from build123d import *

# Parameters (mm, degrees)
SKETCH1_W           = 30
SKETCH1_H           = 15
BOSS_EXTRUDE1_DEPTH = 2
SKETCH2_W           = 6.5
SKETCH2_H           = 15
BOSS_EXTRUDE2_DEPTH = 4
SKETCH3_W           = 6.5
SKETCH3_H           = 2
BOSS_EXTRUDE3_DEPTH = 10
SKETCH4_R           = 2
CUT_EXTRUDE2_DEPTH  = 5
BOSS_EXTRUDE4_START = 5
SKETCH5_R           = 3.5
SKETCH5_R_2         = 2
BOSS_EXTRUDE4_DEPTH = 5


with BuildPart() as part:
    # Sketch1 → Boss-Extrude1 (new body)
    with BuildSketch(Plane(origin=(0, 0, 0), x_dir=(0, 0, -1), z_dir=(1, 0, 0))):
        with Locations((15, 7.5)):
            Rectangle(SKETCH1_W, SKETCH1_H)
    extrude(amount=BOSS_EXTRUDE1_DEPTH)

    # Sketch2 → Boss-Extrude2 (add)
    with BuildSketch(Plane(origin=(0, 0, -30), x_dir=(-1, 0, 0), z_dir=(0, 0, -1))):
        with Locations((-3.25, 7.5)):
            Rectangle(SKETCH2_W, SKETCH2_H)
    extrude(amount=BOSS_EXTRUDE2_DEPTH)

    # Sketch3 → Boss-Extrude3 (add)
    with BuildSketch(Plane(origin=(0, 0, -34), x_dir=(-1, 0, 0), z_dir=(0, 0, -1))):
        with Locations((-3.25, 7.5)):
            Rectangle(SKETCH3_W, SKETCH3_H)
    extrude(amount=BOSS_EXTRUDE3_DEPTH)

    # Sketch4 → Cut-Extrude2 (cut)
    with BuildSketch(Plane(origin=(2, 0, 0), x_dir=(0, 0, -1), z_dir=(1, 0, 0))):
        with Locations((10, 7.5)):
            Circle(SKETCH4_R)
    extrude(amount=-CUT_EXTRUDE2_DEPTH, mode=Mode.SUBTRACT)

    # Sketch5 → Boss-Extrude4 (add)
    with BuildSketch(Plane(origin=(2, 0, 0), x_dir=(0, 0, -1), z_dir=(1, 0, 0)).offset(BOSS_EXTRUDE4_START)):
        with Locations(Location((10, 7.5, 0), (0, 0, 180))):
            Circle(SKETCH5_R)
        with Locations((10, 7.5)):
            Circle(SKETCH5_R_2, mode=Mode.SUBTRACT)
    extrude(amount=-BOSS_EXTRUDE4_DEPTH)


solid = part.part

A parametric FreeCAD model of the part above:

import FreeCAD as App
import Part
import Sketcher
Q = App.Units.Quantity

doc = App.newDocument("Part")
params = doc.addObject("Spreadsheet::Sheet", "Params")
for row, (alias, value) in enumerate([
    ("sketch1_width", "15 mm"),
    ("sketch1_height", "30 mm"),
    ("pad1_length", "2 mm"),
    ("sketch2_height", "15 mm"),
    ("sketch2_width", "6.5 mm"),
    ("pad2_length", "4 mm"),
    ("sketch3_height", "2 mm"),
    ("sketch3_width", "6.5 mm"),
    ("pad3_length", "10 mm"),
    ("sketch4_diameter", "4 mm"),
    ("pocket1_length", "5 mm"),
    ("sketch5_diameter", "7 mm"),
    ("sketch5_diameter2", "4 mm"),
    ("pad4_length", "5 mm"),
], start=1):
    params.set(f"A{row}", alias)
    params.set(f"B{row}", "=" + value)
    params.setAlias(f"B{row}", alias)

body = doc.addObject("PartDesign::Body", "Body")

# Sketch on YZ plane
sketch1 = body.newObject("Sketcher::SketchObject", "Sketch")
sketch1.AttachmentSupport = (doc.getObject("YZ_Plane"), [""])
sketch1.MapMode = "FlatFace"
sketch1.addGeometry([
    Part.LineSegment(App.Vector(15, 0, 0), App.Vector(0, 0, 0)),
    Part.LineSegment(App.Vector(0, 0, 0), App.Vector(0, -30, 0)),
    Part.LineSegment(App.Vector(0, -30, 0), App.Vector(15, -30, 0)),
    Part.LineSegment(App.Vector(15, -30, 0), App.Vector(15, 0, 0)),
], False)
sketch1.addConstraint([
    Sketcher.Constraint("Coincident", 0, 2, 1, 1),
    Sketcher.Constraint("Coincident", 1, 2, 2, 1),
    Sketcher.Constraint("Coincident", 2, 2, 3, 1),
    Sketcher.Constraint("Coincident", 3, 2, 0, 1),
    Sketcher.Constraint("Horizontal", 0),
    Sketcher.Constraint("Vertical", 1),
    Sketcher.Constraint("Horizontal", 2),
    Sketcher.Constraint("Vertical", 3),
    Sketcher.Constraint("Coincident", 0, 2, -1, 1),
    Sketcher.Constraint("DistanceX", 0, 2, 0, 1, Q("15 mm")),
    Sketcher.Constraint("DistanceY", 1, 2, 1, 1, Q("30 mm")),
])
sketch1.setExpression("Constraints[9]", "Params.sketch1_width")
sketch1.setExpression("Constraints[10]", "Params.sketch1_height")
pad1 = body.newObject("PartDesign::Pad", "Pad")
pad1.Profile = sketch1
pad1.setExpression("Length", "Params.pad1_length")

# Sketch on XY plane
sketch2 = body.newObject("Sketcher::SketchObject", "Sketch001")
sketch2.AttachmentSupport = (doc.getObject("XY_Plane"), [""])
sketch2.MapMode = "FlatFace"
sketch2.AttachmentOffset = App.Placement(App.Vector(0, 0, -30), App.Rotation())
sketch2.addGeometry([
    Part.LineSegment(App.Vector(6, 15, 0), App.Vector(6, 0, 0)),
    Part.LineSegment(App.Vector(6, 0, 0), App.Vector(0, 0, 0)),
    Part.LineSegment(App.Vector(0, 0, 0), App.Vector(0, 15, 0)),
    Part.LineSegment(App.Vector(0, 15, 0), App.Vector(6, 15, 0)),
], False)
sketch2.addConstraint([
    Sketcher.Constraint("Coincident", 0, 2, 1, 1),
    Sketcher.Constraint("Coincident", 1, 2, 2, 1),
    Sketcher.Constraint("Coincident", 2, 2, 3, 1),
    Sketcher.Constraint("Coincident", 3, 2, 0, 1),
    Sketcher.Constraint("Vertical", 0),
    Sketcher.Constraint("Horizontal", 1),
    Sketcher.Constraint("Vertical", 2),
    Sketcher.Constraint("Horizontal", 3),
    Sketcher.Constraint("Coincident", 1, 2, -1, 1),
    Sketcher.Constraint("DistanceY", 0, 2, 0, 1, Q("15 mm")),
    Sketcher.Constraint("DistanceX", 1, 2, 1, 1, Q("6.5 mm")),
])
sketch2.setExpression("Constraints[9]", "Params.sketch2_height")
sketch2.setExpression("Constraints[10]", "Params.sketch2_width")
pad2 = body.newObject("PartDesign::Pad", "Pad001")
pad2.Profile = sketch2
pad2.setExpression("Length", "Params.pad2_length")
pad2.Reversed = True

# Sketch on XY plane
sketch3 = body.newObject("Sketcher::SketchObject", "Sketch002")
sketch3.AttachmentSupport = (doc.getObject("XY_Plane"), [""])
sketch3.MapMode = "FlatFace"
sketch3.AttachmentOffset = App.Placement(App.Vector(0, 0, -34), App.Rotation())
sketch3.addGeometry([
    Part.LineSegment(App.Vector(6.5, 8.5, 0), App.Vector(6.5, 6.5, 0)),
    Part.LineSegment(App.Vector(6.5, 6.5, 0), App.Vector(0, 6.5, 0)),
    Part.LineSegment(App.Vector(0, 6.5, 0), App.Vector(0, 8.5, 0)),
    Part.LineSegment(App.Vector(0, 8.5, 0), App.Vector(6.5, 8.5, 0)),
], False)
sketch3.addConstraint([
    Sketcher.Constraint("Coincident", 0, 2, 1, 1),
    Sketcher.Constraint("Coincident", 1, 2, 2, 1),
    Sketcher.Constraint("Coincident", 2, 2, 3, 1),
    Sketcher.Constraint("Coincident", 3, 2, 0, 1),
    Sketcher.Constraint("Vertical", 0),
    Sketcher.Constraint("Horizontal", 1),
    Sketcher.Constraint("Vertical", 2),
    Sketcher.Constraint("Horizontal", 3),
    Sketcher.Constraint("PointOnObject", 1, 2, -2),
    Sketcher.Constraint("DistanceY", 0, 2, 0, 1, Q("2 mm")),
    Sketcher.Constraint("DistanceX", 1, 2, 1, 1, Q("6.5 mm")),
    Sketcher.Constraint("DistanceY", -1, 1, 0, 2, Q("6.5 mm")),
])
sketch3.setExpression("Constraints[9]", "Params.sketch3_height")
sketch3.setExpression("Constraints[10]", "Params.sketch3_width")
pad3 = body.newObject("PartDesign::Pad", "Pad002")
pad3.Profile = sketch3
pad3.setExpression("Length", "Params.pad3_length")
pad3.Reversed = True

# Sketch on YZ plane
sketch4 = body.newObject("Sketcher::SketchObject", "Sketch003")
sketch4.AttachmentSupport = (doc.getObject("YZ_Plane"), [""])
sketch4.MapMode = "FlatFace"
sketch4.AttachmentOffset = App.Placement(App.Vector(0, 0, 2), App.Rotation())
sketch4.addGeometry(Part.Circle(App.Vector(7.5, -10, 0), App.Vector(0, 0, 1), 2), False)
sketch4.addConstraint([
    Sketcher.Constraint("Diameter", 0, Q("4 mm")),
    Sketcher.Constraint("DistanceY", 0, 3, -1, 1, Q("10 mm")),
    Sketcher.Constraint("DistanceX", -1, 1, 0, 3, Q("7.5 mm")),
])
sketch4.setExpression("Constraints[0]", "Params.sketch4_diameter")
pocket1 = body.newObject("PartDesign::Pocket", "Pocket")
pocket1.Profile = sketch4
pocket1.setExpression("Length", "Params.pocket1_length")

# Sketch on YZ plane
sketch5 = body.newObject("Sketcher::SketchObject", "Sketch004")
sketch5.AttachmentSupport = (doc.getObject("YZ_Plane"), [""])
sketch5.MapMode = "FlatFace"
sketch5.AttachmentOffset = App.Placement(App.Vector(0, 0, 7), App.Rotation())
sketch5.addGeometry([
    Part.Circle(App.Vector(7.5, -10, 0), App.Vector(0, 0, 1), 3.5),
    Part.Circle(App.Vector(7.5, -10, 0), App.Vector(0, 0, 1), 2),
], False)
sketch5.addConstraint([
    Sketcher.Constraint("Coincident", 1, 3, 0, 3),
    Sketcher.Constraint("Diameter", 0, Q("7 mm")),
    Sketcher.Constraint("Diameter", 1, Q("4 mm")),
    Sketcher.Constraint("DistanceY", 0, 3, -1, 1, Q("10 mm")),
    Sketcher.Constraint("DistanceX", -1, 1, 0, 3, Q("7.5 mm")),
])
sketch5.setExpression("Constraints[1]", "Params.sketch5_diameter")
sketch5.setExpression("Constraints[2]", "Params.sketch5_diameter2")
pad4 = body.newObject("PartDesign::Pad", "Pad003")
pad4.Profile = sketch5
pad4.setExpression("Length", "Params.pad4_length")
pad4.Reversed = True

doc.recompute()
